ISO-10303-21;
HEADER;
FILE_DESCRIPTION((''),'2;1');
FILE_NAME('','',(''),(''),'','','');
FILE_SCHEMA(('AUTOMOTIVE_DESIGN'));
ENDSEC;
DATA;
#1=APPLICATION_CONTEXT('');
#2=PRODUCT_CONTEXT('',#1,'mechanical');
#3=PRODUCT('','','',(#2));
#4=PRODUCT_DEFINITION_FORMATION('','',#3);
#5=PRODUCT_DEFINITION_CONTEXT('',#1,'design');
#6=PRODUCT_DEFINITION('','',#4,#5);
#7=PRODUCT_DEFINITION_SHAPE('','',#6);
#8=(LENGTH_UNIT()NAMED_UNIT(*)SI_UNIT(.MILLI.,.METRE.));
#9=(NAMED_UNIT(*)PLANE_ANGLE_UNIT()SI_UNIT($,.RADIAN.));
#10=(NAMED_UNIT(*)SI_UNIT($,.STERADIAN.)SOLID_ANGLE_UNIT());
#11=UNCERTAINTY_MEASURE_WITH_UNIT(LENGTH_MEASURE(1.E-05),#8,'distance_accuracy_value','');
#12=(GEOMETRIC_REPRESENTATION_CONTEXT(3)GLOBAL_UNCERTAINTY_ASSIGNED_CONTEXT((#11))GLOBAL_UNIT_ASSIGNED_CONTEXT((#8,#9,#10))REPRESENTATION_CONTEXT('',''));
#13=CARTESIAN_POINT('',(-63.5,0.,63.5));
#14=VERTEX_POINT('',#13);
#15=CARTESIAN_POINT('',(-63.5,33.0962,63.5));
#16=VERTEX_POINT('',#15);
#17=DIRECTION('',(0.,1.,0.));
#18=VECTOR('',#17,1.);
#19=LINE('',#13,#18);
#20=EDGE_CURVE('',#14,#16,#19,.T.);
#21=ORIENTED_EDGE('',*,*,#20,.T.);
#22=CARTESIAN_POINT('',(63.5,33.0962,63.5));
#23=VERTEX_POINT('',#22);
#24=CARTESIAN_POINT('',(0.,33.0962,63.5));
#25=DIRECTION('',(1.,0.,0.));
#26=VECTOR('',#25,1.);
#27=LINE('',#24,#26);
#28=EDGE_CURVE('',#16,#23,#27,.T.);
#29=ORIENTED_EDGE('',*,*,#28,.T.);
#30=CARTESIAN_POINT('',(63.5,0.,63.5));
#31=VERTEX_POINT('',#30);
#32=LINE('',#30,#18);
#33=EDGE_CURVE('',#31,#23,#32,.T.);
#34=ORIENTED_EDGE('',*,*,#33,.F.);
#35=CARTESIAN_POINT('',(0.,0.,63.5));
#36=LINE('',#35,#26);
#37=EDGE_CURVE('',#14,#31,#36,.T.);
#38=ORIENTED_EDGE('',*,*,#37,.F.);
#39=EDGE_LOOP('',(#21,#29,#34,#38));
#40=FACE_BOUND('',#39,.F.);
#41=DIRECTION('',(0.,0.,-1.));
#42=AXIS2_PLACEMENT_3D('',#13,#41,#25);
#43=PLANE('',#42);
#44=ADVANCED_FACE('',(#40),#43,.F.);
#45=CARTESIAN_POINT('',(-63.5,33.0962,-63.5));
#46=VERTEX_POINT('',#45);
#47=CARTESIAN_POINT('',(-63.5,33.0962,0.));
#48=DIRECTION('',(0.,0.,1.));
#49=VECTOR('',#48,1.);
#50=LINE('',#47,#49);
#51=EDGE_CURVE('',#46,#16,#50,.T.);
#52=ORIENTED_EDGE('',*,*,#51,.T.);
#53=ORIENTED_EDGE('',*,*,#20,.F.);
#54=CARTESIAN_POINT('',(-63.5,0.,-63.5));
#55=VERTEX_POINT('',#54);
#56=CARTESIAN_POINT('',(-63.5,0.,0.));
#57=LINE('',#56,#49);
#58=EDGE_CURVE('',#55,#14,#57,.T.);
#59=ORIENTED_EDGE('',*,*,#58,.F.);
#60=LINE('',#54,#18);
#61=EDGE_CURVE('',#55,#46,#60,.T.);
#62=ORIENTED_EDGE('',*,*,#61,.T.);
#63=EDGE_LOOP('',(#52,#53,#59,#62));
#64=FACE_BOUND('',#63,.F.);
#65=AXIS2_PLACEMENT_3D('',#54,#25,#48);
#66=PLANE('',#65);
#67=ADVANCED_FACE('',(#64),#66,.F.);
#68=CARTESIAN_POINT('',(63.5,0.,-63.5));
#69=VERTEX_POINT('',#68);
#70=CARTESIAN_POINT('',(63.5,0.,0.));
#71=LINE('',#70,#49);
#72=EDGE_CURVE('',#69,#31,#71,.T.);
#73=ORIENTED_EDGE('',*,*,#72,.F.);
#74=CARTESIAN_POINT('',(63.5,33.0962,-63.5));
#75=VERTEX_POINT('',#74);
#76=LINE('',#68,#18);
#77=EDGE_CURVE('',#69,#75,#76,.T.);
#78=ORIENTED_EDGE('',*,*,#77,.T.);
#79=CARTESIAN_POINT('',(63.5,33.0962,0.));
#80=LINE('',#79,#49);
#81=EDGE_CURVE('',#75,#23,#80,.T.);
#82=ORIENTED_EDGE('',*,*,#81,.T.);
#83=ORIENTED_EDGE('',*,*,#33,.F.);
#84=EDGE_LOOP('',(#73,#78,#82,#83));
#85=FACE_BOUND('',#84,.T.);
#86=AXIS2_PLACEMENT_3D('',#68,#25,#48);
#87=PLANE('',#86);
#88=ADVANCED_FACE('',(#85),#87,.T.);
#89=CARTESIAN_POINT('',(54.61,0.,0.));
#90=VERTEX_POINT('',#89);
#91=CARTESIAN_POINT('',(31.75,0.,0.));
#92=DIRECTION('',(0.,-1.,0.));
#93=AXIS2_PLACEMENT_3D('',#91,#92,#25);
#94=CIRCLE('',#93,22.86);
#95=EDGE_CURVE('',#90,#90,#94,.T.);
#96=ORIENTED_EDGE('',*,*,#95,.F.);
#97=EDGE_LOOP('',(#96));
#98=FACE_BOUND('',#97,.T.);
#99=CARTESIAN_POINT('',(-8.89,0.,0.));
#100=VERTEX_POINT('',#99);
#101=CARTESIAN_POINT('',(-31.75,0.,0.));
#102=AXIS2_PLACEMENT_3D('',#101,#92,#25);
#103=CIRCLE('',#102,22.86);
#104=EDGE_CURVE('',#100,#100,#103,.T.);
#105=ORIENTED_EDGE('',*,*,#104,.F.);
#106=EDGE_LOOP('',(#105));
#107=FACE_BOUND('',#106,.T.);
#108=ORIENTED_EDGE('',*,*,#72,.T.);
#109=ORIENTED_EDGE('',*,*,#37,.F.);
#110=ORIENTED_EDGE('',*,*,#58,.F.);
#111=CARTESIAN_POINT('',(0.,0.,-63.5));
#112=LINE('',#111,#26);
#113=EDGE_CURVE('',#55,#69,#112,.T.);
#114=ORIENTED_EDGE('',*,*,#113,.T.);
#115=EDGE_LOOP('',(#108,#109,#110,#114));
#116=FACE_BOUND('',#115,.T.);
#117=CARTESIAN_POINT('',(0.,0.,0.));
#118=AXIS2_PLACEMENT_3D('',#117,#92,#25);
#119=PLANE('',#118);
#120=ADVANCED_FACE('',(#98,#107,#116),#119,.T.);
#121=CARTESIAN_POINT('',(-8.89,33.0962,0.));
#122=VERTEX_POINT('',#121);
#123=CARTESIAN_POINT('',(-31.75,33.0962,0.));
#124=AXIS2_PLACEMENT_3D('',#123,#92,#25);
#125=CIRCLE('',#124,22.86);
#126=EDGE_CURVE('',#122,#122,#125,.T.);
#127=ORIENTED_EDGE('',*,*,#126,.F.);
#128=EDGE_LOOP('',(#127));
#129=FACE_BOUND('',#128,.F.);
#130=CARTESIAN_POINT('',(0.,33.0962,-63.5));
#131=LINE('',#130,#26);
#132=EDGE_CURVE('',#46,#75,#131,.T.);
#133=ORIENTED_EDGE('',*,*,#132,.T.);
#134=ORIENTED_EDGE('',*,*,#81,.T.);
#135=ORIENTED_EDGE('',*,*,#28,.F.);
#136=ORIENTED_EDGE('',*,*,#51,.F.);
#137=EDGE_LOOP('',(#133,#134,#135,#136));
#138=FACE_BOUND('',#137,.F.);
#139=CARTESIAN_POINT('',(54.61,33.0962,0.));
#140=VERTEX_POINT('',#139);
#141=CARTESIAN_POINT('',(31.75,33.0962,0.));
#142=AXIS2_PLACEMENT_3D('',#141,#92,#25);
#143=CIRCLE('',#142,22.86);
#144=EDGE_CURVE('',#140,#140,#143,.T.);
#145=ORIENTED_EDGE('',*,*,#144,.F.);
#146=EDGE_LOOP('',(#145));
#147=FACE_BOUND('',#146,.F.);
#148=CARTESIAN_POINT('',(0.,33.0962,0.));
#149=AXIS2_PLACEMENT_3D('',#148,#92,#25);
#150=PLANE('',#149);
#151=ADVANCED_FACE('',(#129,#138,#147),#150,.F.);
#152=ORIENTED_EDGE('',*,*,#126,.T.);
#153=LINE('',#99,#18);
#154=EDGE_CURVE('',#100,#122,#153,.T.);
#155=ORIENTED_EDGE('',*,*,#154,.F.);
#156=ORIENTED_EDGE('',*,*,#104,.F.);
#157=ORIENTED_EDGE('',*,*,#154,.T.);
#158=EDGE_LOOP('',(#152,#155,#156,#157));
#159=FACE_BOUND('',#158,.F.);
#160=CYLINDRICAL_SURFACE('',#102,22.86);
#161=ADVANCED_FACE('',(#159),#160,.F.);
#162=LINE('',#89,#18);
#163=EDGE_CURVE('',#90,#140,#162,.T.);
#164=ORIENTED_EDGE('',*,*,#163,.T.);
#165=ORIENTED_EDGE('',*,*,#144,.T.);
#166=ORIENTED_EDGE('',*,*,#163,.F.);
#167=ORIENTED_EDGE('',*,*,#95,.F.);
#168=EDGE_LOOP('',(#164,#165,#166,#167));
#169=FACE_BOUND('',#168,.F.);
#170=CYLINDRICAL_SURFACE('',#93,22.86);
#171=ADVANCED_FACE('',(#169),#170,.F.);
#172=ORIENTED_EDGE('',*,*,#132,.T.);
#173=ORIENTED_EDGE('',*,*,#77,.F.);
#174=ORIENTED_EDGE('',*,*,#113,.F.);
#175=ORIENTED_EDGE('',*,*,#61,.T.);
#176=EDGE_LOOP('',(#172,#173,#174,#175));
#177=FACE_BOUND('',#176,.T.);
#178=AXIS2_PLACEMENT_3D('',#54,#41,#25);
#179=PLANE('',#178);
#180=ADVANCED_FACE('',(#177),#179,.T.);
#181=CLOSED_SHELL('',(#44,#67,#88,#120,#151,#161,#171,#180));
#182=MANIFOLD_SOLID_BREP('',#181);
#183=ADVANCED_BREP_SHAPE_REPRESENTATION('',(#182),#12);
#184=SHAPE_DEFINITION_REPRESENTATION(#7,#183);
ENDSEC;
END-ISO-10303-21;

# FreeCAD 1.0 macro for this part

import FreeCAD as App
import Part
import Sketcher
Q = App.Units.Quantity

doc = App.newDocument("Part")
body = doc.addObject("PartDesign::Body", "Body")

sketch1 = doc.addObject("Sketcher::SketchObject", "Sketch")
body.addObject(sketch1)
sketch1.AttachmentSupport = (doc.XZ_Plane, [""])
sketch1.MapMode = "FlatFace"
sketch1.addGeometry([
    Part.LineSegment(App.Vector(-63.5, 63.5, 0), App.Vector(-63.5, -63.5, 0)),
    Part.LineSegment(App.Vector(-63.5, -63.5, 0), App.Vector(63.5, -63.5, 0)),
    Part.LineSegment(App.Vector(63.5, -63.5, 0), App.Vector(63.5, 63.5, 0)),
    Part.LineSegment(App.Vector(63.5, 63.5, 0), App.Vector(-63.5, 63.5, 0)),
    Part.Circle(App.Vector(-31.75, 0, 0), App.Vector(0, 0, 1), 22.86),
    Part.Circle(App.Vector(31.75, 0, 0), App.Vector(0, 0, 1), 22.86),
], False)
sketch1.addConstraint([
    Sketcher.Constraint("Coincident", 0, 2, 1, 1),
    Sketcher.Constraint("Coincident", 1, 2, 2, 1),
    Sketcher.Constraint("Coincident", 2, 2, 3, 1),
    Sketcher.Constraint("Coincident", 3, 2, 0, 1),
    Sketcher.Constraint("Vertical", 0),
    Sketcher.Constraint("Horizontal", 1),
    Sketcher.Constraint("Vertical", 2),
    Sketcher.Constraint("Horizontal", 3),
    Sketcher.Constraint("Equal", 4, 5),
    Sketcher.Constraint("Symmetric", 4, 3, 5, 3, -1, 1),
    Sketcher.Constraint("Symmetric", 0, 2, 2, 2, -1, 1),
    Sketcher.Constraint("PointOnObject", 4, 3, -1),
    Sketcher.Constraint("Equal", 3, 0),
    Sketcher.Constraint("Diameter", 4, Q("1.8 in")),
    Sketcher.Constraint("DistanceX", 1, 1, 1, 2, Q("5 in")),
    Sketcher.Constraint("DistanceX", 4, 3, 5, 3, Q("2.5 in")),
])
pad1 = doc.addObject("PartDesign::Pad", "Pad")
body.addObject(pad1)
pad1.Profile = sketch1
pad1.Length = Q("1.303 in")
pad1.Reversed = True

doc.recompute()
